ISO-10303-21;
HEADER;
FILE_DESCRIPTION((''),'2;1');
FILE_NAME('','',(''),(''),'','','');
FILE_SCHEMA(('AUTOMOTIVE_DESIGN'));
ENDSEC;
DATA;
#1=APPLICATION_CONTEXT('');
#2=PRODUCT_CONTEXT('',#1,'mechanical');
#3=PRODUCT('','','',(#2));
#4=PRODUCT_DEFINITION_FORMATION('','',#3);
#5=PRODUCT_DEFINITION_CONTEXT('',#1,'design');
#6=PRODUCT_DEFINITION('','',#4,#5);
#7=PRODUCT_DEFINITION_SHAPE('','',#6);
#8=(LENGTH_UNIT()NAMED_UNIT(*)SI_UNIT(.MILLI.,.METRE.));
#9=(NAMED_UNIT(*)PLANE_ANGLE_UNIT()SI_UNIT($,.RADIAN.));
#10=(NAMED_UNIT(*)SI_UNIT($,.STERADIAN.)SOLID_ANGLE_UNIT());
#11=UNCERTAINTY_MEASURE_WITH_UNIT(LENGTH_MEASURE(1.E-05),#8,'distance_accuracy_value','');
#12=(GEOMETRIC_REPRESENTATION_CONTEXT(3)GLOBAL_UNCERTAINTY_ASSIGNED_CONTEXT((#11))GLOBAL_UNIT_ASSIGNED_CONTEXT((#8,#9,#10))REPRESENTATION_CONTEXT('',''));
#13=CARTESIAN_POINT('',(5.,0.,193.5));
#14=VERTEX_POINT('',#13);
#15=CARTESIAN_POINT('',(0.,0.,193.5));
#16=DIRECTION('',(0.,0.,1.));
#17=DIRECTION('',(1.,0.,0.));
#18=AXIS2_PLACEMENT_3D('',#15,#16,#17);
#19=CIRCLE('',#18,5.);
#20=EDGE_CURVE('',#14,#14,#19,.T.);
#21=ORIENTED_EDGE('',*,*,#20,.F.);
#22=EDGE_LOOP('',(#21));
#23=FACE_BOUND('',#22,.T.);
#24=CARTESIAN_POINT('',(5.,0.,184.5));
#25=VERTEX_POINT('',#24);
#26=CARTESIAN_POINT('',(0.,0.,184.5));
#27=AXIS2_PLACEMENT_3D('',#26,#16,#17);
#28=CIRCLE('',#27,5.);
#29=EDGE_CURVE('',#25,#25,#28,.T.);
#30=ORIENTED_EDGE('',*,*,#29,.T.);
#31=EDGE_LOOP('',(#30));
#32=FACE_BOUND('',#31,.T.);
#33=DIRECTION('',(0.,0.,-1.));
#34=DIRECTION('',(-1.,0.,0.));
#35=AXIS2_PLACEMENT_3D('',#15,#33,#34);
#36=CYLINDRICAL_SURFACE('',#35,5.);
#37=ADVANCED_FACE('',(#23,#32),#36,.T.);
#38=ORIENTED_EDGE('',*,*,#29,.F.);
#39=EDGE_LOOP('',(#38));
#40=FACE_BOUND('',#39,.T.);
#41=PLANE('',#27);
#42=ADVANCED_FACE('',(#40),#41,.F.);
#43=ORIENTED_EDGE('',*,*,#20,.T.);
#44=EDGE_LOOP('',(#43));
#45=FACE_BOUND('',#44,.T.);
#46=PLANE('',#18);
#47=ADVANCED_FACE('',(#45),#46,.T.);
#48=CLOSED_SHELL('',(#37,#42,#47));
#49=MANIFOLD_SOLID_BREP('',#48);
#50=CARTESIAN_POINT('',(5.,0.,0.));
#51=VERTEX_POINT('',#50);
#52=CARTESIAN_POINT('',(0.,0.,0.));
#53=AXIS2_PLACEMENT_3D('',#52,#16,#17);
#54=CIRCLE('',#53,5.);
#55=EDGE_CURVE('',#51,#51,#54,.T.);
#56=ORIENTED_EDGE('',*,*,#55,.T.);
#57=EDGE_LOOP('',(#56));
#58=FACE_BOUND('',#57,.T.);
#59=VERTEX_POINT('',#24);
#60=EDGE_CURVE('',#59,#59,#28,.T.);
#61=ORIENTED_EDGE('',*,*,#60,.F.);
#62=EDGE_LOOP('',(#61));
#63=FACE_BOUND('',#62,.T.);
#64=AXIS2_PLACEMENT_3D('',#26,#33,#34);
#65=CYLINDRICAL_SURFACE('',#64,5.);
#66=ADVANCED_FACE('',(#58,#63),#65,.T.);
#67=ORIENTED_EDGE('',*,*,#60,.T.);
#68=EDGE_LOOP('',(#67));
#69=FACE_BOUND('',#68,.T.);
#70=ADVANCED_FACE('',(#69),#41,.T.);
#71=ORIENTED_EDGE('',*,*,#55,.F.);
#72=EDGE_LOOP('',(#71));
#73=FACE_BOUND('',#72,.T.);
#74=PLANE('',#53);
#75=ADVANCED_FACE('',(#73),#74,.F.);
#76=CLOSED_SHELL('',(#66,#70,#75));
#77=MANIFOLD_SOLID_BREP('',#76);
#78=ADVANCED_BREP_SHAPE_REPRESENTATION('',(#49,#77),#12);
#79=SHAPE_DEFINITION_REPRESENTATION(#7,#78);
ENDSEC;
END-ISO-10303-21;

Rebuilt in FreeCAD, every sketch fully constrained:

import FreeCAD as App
import Part
import Sketcher
from FreeCAD import Vector

doc = App.newDocument("Part")
body = doc.addObject("PartDesign::Body", "Body")

sketch1 = body.newObject("Sketcher::SketchObject", "Sketch")
sketch1.AttachmentSupport = (doc.getObject("XY_Plane"), [""])
sketch1.MapMode = "FlatFace"
sketch1.addGeometry(Part.Circle(Vector(0, 0, 0), Vector(0, 0, 1), 5), False)
sketch1.addConstraint([
    Sketcher.Constraint("Coincident", 0, 3, -1, 1),
    Sketcher.Constraint("Diameter", 0, 10.0),
])
pad1 = body.newObject("PartDesign::Pad", "Pad")
pad1.Profile = sketch1
pad1.Length = 184.5
body2 = doc.addObject("PartDesign::Body", "Body001")

sketch2 = body2.newObject("Sketcher::SketchObject", "Sketch001")
sketch2.AttachmentSupport = (doc.getObject("XY_Plane001"), [""])
sketch2.MapMode = "FlatFace"
sketch2.AttachmentOffset = App.Placement(Vector(0, 0, 184.5), App.Rotation())
sketch2.addGeometry(Part.Circle(Vector(0, 0, 0), Vector(0, 0, 1), 5), False)
sketch2.addConstraint([
    Sketcher.Constraint("Coincident", 0, 3, -1, 1),
    Sketcher.Constraint("Diameter", 0, 10.0),
])
pad2 = body2.newObject("PartDesign::Pad", "Pad001")
pad2.Profile = sketch2
pad2.Length = 9

doc.recompute()
